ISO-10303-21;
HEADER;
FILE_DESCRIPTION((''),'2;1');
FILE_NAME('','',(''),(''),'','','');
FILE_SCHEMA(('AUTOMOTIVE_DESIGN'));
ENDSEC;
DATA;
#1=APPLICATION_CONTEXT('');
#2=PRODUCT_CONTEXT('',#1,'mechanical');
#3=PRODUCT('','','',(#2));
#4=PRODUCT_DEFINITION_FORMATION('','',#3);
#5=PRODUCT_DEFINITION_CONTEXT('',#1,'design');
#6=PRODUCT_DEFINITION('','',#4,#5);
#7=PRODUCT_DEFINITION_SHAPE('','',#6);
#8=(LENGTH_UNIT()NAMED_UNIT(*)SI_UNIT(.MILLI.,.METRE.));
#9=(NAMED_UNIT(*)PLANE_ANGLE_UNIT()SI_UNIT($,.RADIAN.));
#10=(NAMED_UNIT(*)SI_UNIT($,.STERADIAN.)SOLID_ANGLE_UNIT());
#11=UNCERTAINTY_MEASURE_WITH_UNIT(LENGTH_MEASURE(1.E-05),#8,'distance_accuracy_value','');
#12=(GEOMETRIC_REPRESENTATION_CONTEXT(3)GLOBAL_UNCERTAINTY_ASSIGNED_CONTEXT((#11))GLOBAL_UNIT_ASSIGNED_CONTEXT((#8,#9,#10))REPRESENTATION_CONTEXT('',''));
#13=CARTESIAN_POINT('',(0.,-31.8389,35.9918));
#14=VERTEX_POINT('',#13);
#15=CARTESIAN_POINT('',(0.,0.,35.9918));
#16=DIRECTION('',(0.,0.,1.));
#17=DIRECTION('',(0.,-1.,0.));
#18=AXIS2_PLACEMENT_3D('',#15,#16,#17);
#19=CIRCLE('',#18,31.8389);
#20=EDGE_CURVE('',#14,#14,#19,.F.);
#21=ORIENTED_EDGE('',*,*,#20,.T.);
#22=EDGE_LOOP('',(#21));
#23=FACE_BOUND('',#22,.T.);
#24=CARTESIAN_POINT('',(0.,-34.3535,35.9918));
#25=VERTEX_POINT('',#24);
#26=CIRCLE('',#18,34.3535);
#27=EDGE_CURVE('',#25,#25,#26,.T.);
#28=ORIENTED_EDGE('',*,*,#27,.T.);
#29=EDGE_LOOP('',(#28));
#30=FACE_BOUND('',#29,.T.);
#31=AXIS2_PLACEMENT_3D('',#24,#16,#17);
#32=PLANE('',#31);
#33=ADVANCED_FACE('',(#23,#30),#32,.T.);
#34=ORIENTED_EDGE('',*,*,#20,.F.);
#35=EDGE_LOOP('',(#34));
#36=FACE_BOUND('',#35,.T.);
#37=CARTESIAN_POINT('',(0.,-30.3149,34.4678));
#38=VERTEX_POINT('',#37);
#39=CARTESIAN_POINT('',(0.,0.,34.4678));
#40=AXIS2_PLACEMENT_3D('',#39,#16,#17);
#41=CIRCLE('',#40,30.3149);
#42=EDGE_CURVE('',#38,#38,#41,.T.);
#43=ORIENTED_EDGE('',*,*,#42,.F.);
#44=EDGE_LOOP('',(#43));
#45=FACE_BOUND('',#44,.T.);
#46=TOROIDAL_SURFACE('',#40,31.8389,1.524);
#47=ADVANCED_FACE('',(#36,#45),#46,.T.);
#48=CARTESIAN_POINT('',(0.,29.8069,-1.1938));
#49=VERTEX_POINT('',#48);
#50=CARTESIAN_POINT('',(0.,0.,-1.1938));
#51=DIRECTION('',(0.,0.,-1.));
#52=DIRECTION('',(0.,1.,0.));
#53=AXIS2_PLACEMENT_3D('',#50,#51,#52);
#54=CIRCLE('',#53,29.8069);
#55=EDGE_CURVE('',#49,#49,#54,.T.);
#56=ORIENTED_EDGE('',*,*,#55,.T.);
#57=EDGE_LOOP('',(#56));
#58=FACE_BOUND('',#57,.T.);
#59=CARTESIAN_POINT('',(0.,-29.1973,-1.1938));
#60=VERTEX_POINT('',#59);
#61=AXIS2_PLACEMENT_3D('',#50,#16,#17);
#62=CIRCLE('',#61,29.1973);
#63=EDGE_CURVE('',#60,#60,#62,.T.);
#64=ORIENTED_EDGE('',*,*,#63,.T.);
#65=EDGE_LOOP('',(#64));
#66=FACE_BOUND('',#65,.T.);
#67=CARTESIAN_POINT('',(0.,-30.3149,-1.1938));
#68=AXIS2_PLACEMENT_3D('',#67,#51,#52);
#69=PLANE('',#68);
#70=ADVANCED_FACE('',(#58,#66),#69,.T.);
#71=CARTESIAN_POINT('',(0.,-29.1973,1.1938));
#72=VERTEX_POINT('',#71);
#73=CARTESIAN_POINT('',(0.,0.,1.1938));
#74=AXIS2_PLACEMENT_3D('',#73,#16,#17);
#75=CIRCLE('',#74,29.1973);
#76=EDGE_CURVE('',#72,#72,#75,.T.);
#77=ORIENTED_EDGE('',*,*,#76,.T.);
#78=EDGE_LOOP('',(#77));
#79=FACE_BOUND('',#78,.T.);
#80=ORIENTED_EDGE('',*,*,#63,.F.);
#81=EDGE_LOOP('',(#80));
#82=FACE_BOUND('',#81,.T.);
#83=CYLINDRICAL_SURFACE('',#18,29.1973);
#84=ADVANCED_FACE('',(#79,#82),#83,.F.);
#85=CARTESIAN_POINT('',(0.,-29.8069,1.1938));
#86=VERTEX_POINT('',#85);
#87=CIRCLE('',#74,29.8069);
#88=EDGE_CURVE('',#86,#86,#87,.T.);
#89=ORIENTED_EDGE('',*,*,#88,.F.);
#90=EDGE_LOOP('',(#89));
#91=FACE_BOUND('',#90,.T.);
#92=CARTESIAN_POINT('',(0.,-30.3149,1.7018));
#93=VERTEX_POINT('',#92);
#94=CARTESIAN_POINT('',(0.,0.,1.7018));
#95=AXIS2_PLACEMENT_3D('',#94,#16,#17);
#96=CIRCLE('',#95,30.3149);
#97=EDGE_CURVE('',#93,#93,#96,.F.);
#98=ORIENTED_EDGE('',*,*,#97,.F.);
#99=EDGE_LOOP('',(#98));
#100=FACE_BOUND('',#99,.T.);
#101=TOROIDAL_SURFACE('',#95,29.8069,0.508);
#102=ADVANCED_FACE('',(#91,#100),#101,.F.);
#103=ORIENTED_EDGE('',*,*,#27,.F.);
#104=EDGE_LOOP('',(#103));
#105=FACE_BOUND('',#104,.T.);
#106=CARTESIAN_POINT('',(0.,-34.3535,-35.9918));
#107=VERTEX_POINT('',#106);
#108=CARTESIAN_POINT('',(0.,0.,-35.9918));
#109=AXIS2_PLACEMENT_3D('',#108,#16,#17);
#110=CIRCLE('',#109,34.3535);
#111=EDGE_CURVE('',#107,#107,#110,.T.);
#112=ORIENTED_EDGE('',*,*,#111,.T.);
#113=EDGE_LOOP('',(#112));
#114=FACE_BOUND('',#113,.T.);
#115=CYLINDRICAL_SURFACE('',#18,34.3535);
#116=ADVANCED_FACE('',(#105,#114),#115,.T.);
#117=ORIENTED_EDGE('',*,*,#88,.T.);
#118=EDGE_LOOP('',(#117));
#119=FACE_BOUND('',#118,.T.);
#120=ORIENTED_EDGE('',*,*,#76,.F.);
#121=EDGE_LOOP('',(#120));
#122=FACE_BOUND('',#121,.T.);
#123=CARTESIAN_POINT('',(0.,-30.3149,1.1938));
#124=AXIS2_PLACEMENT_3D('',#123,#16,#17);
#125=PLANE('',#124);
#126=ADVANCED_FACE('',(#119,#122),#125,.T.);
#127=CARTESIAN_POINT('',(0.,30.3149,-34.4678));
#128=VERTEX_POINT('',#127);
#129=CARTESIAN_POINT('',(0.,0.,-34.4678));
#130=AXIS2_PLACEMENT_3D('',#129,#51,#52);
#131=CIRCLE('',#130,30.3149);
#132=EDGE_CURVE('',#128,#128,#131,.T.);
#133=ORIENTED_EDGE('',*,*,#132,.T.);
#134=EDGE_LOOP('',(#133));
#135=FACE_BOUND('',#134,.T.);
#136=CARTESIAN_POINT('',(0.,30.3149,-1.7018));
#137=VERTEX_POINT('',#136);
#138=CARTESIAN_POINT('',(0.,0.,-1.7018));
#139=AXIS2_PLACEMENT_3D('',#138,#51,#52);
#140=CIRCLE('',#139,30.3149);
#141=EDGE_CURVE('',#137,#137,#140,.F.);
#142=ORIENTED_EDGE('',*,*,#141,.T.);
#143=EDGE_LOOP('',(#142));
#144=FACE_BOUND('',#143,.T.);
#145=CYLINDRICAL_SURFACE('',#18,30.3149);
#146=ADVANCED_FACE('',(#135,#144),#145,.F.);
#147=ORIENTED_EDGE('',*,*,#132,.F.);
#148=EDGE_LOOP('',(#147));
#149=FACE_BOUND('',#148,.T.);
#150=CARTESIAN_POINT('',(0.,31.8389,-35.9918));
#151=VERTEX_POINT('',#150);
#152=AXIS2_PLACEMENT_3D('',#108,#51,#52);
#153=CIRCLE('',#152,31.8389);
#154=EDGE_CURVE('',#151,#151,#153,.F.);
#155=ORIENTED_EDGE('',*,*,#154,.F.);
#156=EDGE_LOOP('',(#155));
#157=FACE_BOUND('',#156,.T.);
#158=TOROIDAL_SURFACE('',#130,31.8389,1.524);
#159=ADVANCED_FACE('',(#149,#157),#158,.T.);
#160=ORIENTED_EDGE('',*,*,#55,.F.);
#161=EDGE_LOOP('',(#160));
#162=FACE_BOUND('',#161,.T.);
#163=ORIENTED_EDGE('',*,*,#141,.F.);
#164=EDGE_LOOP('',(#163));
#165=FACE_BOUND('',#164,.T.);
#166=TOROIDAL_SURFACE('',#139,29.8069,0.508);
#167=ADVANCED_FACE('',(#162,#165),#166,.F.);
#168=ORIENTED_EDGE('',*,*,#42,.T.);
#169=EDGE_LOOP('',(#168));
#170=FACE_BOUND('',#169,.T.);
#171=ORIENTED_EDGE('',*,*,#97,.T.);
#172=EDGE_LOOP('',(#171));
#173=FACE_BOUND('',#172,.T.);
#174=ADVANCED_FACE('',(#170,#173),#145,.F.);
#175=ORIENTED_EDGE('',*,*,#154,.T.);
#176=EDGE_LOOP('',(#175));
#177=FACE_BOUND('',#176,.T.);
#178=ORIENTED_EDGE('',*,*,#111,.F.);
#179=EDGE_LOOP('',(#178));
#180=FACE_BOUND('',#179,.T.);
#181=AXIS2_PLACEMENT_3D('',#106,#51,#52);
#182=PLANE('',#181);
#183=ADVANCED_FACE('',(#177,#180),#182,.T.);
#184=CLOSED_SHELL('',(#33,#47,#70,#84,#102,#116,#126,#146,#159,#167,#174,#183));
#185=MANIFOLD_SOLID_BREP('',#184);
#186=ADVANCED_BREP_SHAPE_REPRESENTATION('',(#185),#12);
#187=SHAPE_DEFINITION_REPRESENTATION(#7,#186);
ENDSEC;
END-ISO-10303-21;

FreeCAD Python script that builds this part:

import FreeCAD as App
import Part
import Sketcher
Q = App.Units.Quantity


def edges_at(feature, points):
    """Names of the edges that pass closest to the given points."""
    edges = feature.Shape.Edges
    near = lambda p: min(range(len(edges)), key=lambda i: edges[i].distToShape(Part.Vertex(*p))[0])
    return sorted({f"Edge{near(p) + 1}" for p in points})

doc = App.newDocument("Part")
params = doc.addObject("Spreadsheet::Sheet", "Params")
for row, (alias, value) in enumerate([
    ("sketch1_height", "1.37 in"),
    ("sketch1_width", "0.159 in"),
    ("sketch1_width2", "0.044 in"),
    ("sketch1_height2", "2.834 in"),
    ("revolution_angle", "360 deg"),
    ("fillet_radius", "0.06 in"),
    ("fillet2_radius", "0.02 in"),
], start=1):
    params.set(f"A{row}", alias)
    params.set(f"B{row}", "=" + value)
    params.setAlias(f"B{row}", alias)

body = doc.addObject("PartDesign::Body", "Body")

# Sketch on YZ plane
sketch1 = body.newObject("Sketcher::SketchObject", "Sketch")
sketch1.AttachmentSupport = (doc.getObject("YZ_Plane"), [""])
sketch1.MapMode = "FlatFace"
sketch1.addGeometry(Part.LineSegment(App.Vector(-34.4, 36, 0), App.Vector(-34.4, -36, 0)), False)
sketch1.addGeometry(Part.LineSegment(App.Vector(-34.4, -36, 0), App.Vector(-30.3, -36, 0)), False)
sketch1.addGeometry(Part.LineSegment(App.Vector(-30.3, -36, 0), App.Vector(-30.3, -1.2, 0)), False)
sketch1.addGeometry(Part.LineSegment(App.Vector(-30.3, -1.2, 0), App.Vector(-29.2, -1.2, 0)), False)
sketch1.addGeometry(Part.LineSegment(App.Vector(-29.2, -1.2, 0), App.Vector(-29.2, 1.2, 0)), False)
sketch1.addGeometry(Part.LineSegment(App.Vector(-29.2, 1.2, 0), App.Vector(-30.3, 1.2, 0)), False)
sketch1.addGeometry(Part.LineSegment(App.Vector(-30.3, 1.2, 0), App.Vector(-30.3, 36, 0)), False)
sketch1.addGeometry(Part.LineSegment(App.Vector(-30.3, 36, 0), App.Vector(-34.4, 36, 0)), False)
sketch1.addConstraint(Sketcher.Constraint("Coincident", 0, 2, 1, 1))
sketch1.addConstraint(Sketcher.Constraint("Coincident", 1, 2, 2, 1))
sketch1.addConstraint(Sketcher.Constraint("Coincident", 2, 2, 3, 1))
sketch1.addConstraint(Sketcher.Constraint("Coincident", 3, 2, 4, 1))
sketch1.addConstraint(Sketcher.Constraint("Coincident", 4, 2, 5, 1))
sketch1.addConstraint(Sketcher.Constraint("Coincident", 5, 2, 6, 1))
sketch1.addConstraint(Sketcher.Constraint("Coincident", 6, 2, 7, 1))
sketch1.addConstraint(Sketcher.Constraint("Coincident", 7, 2, 0, 1))
sketch1.addConstraint(Sketcher.Constraint("Vertical", 0))
sketch1.addConstraint(Sketcher.Constraint("Horizontal", 1))
sketch1.addConstraint(Sketcher.Constraint("Vertical", 2))
sketch1.addConstraint(Sketcher.Constraint("Horizontal", 3))
sketch1.addConstraint(Sketcher.Constraint("Vertical", 4))
sketch1.addConstraint(Sketcher.Constraint("Horizontal", 5))
sketch1.addConstraint(Sketcher.Constraint("Vertical", 6))
sketch1.addConstraint(Sketcher.Constraint("Horizontal", 7))
sketch1.addConstraint(Sketcher.Constraint("Symmetric", 2, 2, 5, 2, -1))
sketch1.addConstraint(Sketcher.Constraint("Equal", 2, 6))
sketch1.addConstraint(Sketcher.Constraint("DistanceY", 2, 1, 2, 2, Q("1.37 in")))
sketch1.addConstraint(Sketcher.Constraint("DistanceX", 1, 1, 1, 2, Q("0.159 in")))
sketch1.addConstraint(Sketcher.Constraint("DistanceX", 3, 1, 3, 2, Q("0.044 in")))
sketch1.addConstraint(Sketcher.Constraint("DistanceY", 0, 2, 0, 1, Q("2.834 in")))
sketch1.addConstraint(Sketcher.Constraint("DistanceX", 0, 2, -1, 1, Q("1.3525 in")))
sketch1.setExpression("Constraints[18]", "Params.sketch1_height")
sketch1.setExpression("Constraints[19]", "Params.sketch1_width")
sketch1.setExpression("Constraints[20]", "Params.sketch1_width2")
sketch1.setExpression("Constraints[21]", "Params.sketch1_height2")
revolution = body.newObject("PartDesign::Revolution", "Revolution")
revolution.Profile = sketch1
revolution.ReferenceAxis = (sketch1, ["V_Axis"])
revolution.setExpression("Angle", "Params.revolution_angle")
doc.recompute()

fillet = body.newObject("PartDesign::Fillet", "Fillet")
fillet.Base = (revolution, edges_at(revolution, [(0, 30.315, -35.992), (0, 30.315, 35.992)]))
fillet.setExpression("Radius", "Params.fillet_radius")
doc.recompute()

fillet2 = body.newObject("PartDesign::Fillet", "Fillet001")
fillet2.Base = (fillet, edges_at(fillet, [(0, 30.315, -1.194), (0, 30.315, 1.194)]))
fillet2.setExpression("Radius", "Params.fillet2_radius")

doc.recompute()
